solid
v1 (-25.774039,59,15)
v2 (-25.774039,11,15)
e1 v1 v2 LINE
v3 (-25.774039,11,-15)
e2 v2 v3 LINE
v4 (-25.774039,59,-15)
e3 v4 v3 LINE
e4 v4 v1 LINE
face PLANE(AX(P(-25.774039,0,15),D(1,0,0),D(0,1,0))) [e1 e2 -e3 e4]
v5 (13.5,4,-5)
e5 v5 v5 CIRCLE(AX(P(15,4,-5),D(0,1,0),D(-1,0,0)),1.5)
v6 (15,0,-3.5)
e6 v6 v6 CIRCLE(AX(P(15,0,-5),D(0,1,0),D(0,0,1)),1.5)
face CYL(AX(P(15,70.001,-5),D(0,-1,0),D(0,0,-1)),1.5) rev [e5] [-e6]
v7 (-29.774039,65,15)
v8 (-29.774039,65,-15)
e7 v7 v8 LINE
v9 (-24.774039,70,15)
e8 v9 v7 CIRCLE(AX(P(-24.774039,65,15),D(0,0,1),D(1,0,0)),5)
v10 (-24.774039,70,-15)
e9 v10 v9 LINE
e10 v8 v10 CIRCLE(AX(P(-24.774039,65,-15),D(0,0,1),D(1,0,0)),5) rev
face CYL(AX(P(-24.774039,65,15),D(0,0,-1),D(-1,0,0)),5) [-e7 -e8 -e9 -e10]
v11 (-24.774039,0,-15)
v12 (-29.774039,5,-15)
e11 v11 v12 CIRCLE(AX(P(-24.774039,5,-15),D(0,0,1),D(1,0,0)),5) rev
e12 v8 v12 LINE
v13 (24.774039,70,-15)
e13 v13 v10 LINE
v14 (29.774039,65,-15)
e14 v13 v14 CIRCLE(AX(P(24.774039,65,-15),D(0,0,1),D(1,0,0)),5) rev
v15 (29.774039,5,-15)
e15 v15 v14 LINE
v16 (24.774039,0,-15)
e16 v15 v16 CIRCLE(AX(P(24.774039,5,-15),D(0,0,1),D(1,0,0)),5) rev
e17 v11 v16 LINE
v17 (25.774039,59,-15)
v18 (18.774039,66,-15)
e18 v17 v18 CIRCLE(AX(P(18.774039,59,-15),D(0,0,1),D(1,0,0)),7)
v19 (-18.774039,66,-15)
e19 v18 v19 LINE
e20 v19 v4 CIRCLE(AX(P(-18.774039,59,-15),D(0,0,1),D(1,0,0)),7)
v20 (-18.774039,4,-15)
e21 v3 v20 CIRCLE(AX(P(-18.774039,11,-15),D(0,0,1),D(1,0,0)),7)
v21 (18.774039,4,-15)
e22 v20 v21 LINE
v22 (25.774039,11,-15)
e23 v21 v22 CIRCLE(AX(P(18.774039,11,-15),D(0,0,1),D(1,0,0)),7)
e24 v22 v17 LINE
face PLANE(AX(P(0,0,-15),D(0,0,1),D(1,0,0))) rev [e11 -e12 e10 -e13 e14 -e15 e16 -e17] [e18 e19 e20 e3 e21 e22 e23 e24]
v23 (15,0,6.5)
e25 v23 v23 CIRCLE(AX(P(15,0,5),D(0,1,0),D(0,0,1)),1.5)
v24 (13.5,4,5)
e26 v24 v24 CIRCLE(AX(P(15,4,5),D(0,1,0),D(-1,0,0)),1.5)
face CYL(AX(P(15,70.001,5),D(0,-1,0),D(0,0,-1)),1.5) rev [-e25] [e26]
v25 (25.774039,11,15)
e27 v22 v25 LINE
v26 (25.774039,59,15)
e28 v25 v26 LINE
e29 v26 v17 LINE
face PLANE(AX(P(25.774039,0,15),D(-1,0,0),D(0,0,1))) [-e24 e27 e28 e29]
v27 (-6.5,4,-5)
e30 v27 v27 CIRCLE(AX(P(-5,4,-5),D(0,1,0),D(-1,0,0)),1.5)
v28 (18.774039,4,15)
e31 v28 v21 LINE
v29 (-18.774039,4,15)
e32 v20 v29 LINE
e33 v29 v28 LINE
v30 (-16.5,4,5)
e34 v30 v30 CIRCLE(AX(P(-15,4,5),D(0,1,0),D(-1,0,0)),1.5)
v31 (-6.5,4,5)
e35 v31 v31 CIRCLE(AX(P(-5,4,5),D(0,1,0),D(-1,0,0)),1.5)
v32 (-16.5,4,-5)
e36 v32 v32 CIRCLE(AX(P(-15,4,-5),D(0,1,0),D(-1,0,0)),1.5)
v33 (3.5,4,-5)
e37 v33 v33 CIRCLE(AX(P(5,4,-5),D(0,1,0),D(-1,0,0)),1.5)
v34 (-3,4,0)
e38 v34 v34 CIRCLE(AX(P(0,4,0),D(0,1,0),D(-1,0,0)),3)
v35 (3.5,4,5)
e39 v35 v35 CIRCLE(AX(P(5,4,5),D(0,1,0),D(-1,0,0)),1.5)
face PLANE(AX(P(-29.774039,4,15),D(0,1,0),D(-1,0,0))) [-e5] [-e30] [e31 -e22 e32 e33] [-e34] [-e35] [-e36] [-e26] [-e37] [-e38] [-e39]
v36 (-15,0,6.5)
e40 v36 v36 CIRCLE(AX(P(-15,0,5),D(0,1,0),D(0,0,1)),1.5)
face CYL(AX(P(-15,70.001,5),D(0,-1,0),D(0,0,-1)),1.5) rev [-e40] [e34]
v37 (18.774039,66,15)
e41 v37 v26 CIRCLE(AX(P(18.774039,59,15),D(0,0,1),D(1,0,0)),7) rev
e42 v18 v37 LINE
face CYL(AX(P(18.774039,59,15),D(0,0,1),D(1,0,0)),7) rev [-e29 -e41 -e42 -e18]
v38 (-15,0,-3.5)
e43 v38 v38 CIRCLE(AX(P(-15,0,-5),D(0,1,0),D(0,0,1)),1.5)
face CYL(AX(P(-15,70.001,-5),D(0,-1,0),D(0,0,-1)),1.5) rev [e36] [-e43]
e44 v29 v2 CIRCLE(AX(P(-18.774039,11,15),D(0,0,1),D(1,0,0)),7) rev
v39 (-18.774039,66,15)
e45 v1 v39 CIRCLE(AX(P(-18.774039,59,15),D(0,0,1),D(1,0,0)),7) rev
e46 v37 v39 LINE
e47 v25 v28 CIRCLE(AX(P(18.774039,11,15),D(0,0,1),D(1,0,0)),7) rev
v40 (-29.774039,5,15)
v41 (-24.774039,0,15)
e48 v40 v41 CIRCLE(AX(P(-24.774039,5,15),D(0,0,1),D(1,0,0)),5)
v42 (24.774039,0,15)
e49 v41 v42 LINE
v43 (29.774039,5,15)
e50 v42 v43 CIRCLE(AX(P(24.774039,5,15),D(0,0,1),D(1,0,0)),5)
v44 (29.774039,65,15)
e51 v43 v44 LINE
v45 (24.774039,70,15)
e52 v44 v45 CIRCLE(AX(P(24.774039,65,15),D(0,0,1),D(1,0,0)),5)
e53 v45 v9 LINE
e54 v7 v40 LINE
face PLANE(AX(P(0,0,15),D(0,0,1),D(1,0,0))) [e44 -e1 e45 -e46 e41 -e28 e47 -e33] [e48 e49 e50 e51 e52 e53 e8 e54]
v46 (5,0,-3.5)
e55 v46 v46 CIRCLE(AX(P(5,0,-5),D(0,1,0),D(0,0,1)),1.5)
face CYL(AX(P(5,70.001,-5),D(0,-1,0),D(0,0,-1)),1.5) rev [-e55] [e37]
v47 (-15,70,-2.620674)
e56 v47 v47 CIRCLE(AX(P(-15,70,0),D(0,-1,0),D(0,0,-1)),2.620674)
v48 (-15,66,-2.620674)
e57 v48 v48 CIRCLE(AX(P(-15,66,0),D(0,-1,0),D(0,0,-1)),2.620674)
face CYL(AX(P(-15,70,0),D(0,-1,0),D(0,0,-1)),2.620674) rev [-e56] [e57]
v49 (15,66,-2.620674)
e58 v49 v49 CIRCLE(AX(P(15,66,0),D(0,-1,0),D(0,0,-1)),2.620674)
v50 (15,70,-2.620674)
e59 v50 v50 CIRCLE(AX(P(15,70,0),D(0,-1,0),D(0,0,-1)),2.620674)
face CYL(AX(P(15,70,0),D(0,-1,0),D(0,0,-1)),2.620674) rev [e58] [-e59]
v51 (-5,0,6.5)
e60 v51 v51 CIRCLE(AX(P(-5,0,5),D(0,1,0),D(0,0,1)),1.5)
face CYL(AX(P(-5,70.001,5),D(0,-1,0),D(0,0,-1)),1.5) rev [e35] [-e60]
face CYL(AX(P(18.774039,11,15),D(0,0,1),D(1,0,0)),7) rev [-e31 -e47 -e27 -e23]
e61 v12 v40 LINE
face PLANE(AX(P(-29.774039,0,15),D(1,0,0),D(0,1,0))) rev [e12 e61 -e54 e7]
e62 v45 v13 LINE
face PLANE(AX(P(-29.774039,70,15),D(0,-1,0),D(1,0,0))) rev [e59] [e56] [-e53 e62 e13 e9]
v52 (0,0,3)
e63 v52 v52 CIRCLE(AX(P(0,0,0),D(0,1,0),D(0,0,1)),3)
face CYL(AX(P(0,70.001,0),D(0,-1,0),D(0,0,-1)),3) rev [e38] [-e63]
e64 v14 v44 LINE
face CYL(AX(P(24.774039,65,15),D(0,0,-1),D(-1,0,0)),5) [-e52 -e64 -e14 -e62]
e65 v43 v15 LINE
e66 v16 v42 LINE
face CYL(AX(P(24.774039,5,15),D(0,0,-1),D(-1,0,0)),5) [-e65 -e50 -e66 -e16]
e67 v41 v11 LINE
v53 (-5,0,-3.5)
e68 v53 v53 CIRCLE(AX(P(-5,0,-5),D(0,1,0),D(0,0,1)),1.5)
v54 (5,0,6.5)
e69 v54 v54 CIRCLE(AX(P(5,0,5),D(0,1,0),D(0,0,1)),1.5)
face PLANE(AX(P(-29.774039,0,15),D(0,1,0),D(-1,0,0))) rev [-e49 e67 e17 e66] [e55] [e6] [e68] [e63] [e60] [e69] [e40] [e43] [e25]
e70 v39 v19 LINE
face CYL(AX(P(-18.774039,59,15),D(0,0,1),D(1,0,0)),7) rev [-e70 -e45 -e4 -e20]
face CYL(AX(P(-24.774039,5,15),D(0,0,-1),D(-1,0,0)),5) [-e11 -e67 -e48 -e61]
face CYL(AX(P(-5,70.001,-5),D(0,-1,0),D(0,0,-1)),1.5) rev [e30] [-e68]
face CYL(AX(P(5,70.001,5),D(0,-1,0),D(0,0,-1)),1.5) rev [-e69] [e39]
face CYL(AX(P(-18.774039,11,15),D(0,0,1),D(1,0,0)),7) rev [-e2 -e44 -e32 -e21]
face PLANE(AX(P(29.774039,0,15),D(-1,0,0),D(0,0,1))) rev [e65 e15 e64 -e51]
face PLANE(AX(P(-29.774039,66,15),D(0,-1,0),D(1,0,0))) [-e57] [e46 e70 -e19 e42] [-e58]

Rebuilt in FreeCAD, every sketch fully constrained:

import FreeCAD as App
import Part
import Sketcher

V = App.Vector
Q = App.Units.Quantity


def edges_at(feature, points):
    """Names of the edges that pass closest to the given points."""
    edges = feature.Shape.Edges
    near = lambda p: min(range(len(edges)), key=lambda i: edges[i].distToShape(Part.Vertex(*p))[0])
    return sorted({f"Edge{near(p) + 1}" for p in points})


def add_polygon(sketch, points):
    """Adds a closed chain of lines whose ends are joined by coincident constraints."""
    first, n = sketch.GeometryCount, len(points)
    for a, b in zip(points, points[1:] + points[:1]):
        sketch.addGeometry(Part.LineSegment(App.Vector(*a, 0), App.Vector(*b, 0)), False)
    for i in range(n):
        sketch.addConstraint(Sketcher.Constraint("Coincident", first + i, 2, first + (i + 1) % n, 1))

doc = App.newDocument("Part")
body = doc.addObject("PartDesign::Body", "Body")

# Sketch on XY plane
sketch1 = body.newObject("Sketcher::SketchObject", "Sketch")
sketch1.AttachmentSupport = (doc.getObject("XY_Plane"), [""])
sketch1.MapMode = "FlatFace"
add_polygon(sketch1, [(-30, 0), (30, 0), (30, 70), (-30, 70)])  # lines 0-3
add_polygon(sketch1, [(26, 4), (-26, 4), (-26, 66), (26, 66)])  # lines 4-7
sketch1.addConstraint([
    Sketcher.Constraint("Horizontal", 0),
    Sketcher.Constraint("Vertical", 1),
    Sketcher.Constraint("Horizontal", 2),
    Sketcher.Constraint("Vertical", 3),
    Sketcher.Constraint("Horizontal", 4),
    Sketcher.Constraint("Vertical", 5),
    Sketcher.Constraint("Horizontal", 6),
    Sketcher.Constraint("Vertical", 7),
    Sketcher.Constraint("Symmetric", 0, 2, 3, 2, -1, 1),
    Sketcher.Constraint("DistanceY", 1, 1, 1, 2, Q("70 mm")),
    Sketcher.Constraint("DistanceY", 5, 1, 5, 2, Q("62 mm")),
    Sketcher.Constraint("DistanceY", -1, 1, 4, 2, Q("4 mm")),
    Sketcher.Constraint("DistanceX", 3, 2, 4, 2, Q("4 mm")),
    Sketcher.Constraint("DistanceX", 6, 2, 1, 2, Q("4 mm")),
    Sketcher.Constraint("DistanceX", 0, 1, 0, 2, Q("59.548077 mm")),
])
pad1 = body.newObject("PartDesign::Pad", "Pad")
pad1.Profile = sketch1
pad1.Length = 30
pad1.Midplane = True

# Sketch on XZ plane
sketch2 = body.newObject("Sketcher::SketchObject", "Sketch001")
sketch2.AttachmentSupport = (doc.getObject("XZ_Plane"), [""])
sketch2.MapMode = "FlatFace"
sketch2.AttachmentOffset = App.Placement(V(0, 0, -66), App.Rotation())
sketch2.addGeometry([
    Part.Circle(V(15, 0, 0), V(0, 0, 1), 2.6),
    Part.Circle(V(-15, 0, 0), V(0, 0, 1), 2.6),
], False)
sketch2.addConstraint([
    Sketcher.Constraint("Equal", 0, 1),
    Sketcher.Constraint("Symmetric", 0, 3, 1, 3, -1, 1),
    Sketcher.Constraint("PointOnObject", 0, 3, -1),
    Sketcher.Constraint("DistanceX", -1, 1, 0, 3, Q("15 mm")),
    Sketcher.Constraint("Diameter", 0, Q("5.241348 mm")),
])
pocket1 = body.newObject("PartDesign::Pocket", "Pocket")
pocket1.Profile = sketch2
pocket1.Type = "ThroughAll"
doc.recompute()

fillet = body.newObject("PartDesign::Fillet", "Fillet")
fillet.Base = (pocket1, edges_at(pocket1, [
    (-25.774, 4, 0),
    (25.774, 4, 0),
    (25.774, 66, 0),
    (-25.774, 66, 0),
]))
fillet.Radius = 7

# Sketch on XZ plane
sketch3 = body.newObject("Sketcher::SketchObject", "Sketch002")
sketch3.AttachmentSupport = (doc.getObject("XZ_Plane"), [""])
sketch3.MapMode = "FlatFace"
sketch3.addGeometry(Part.Circle(V(0, 0, 0), V(0, 0, 1), 3), False)
sketch3.addConstraint([
    Sketcher.Constraint("Coincident", 0, 3, -1, 1),
    Sketcher.Constraint("Diameter", 0, Q("6 mm")),
])
pocket2 = body.newObject("PartDesign::Pocket", "Pocket001")
pocket2.Profile = sketch3
pocket2.Type = "UpToFirst"

# Sketch on XZ plane
sketch4 = body.newObject("Sketcher::SketchObject", "Sketch003")
sketch4.AttachmentSupport = (doc.getObject("XZ_Plane"), [""])
sketch4.MapMode = "FlatFace"
sketch4.addGeometry(Part.Circle(V(-15, -5, 0), V(0, 0, 1), 1.5), False)
sketch4.addConstraint([
    Sketcher.Constraint("Diameter", 0, Q("3 mm")),
    Sketcher.Constraint("DistanceX", 0, 3, -1, 1, Q("15 mm")),
    Sketcher.Constraint("DistanceY", 0, 3, -1, 1, Q("5 mm")),
])
pocket3 = body.newObject("PartDesign::Pocket", "Pocket002")
pocket3.Profile = sketch4
pocket3.Type = "UpToFirst"

# Sketch on XZ plane
sketch5 = body.newObject("Sketcher::SketchObject", "Sketch004")
sketch5.AttachmentSupport = (doc.getObject("XZ_Plane"), [""])
sketch5.MapMode = "FlatFace"
sketch5.addGeometry(Part.Circle(V(-5, -5, 0), V(0, 0, 1), 1.5), False)
sketch5.addConstraint([
    Sketcher.Constraint("Diameter", 0, Q("3 mm")),
    Sketcher.Constraint("DistanceX", 0, 3, -1, 1, Q("5 mm")),
    Sketcher.Constraint("DistanceY", 0, 3, -1, 1, Q("5 mm")),
])
pocket4 = body.newObject("PartDesign::Pocket", "Pocket003")
pocket4.Profile = sketch5
pocket4.Type = "UpToFirst"

# Sketch on XZ plane
sketch6 = body.newObject("Sketcher::SketchObject", "Sketch005")
sketch6.AttachmentSupport = (doc.getObject("XZ_Plane"), [""])
sketch6.MapMode = "FlatFace"
sketch6.addGeometry(Part.Circle(V(5, -5, 0), V(0, 0, 1), 1.5), False)
sketch6.addConstraint([
    Sketcher.Constraint("Diameter", 0, Q("3 mm")),
    Sketcher.Constraint("DistanceX", -1, 1, 0, 3, Q("5 mm")),
    Sketcher.Constraint("DistanceY", 0, 3, -1, 1, Q("5 mm")),
])
pocket5 = body.newObject("PartDesign::Pocket", "Pocket004")
pocket5.Profile = sketch6
pocket5.Type = "UpToFirst"

# Sketch on XZ plane
sketch7 = body.newObject("Sketcher::SketchObject", "Sketch006")
sketch7.AttachmentSupport = (doc.getObject("XZ_Plane"), [""])
sketch7.MapMode = "FlatFace"
sketch7.addGeometry(Part.Circle(V(15, -5, 0), V(0, 0, 1), 1.5), False)
sketch7.addConstraint([
    Sketcher.Constraint("Diameter", 0, Q("3 mm")),
    Sketcher.Constraint("DistanceX", -1, 1, 0, 3, Q("15 mm")),
    Sketcher.Constraint("DistanceY", 0, 3, -1, 1, Q("5 mm")),
])
pocket6 = body.newObject("PartDesign::Pocket", "Pocket005")
pocket6.Profile = sketch7
pocket6.Type = "UpToFirst"

# Sketch on XZ plane
sketch8 = body.newObject("Sketcher::SketchObject", "Sketch007")
sketch8.AttachmentSupport = (doc.getObject("XZ_Plane"), [""])
sketch8.MapMode = "FlatFace"
sketch8.addGeometry(Part.Circle(V(-5, 5, 0), V(0, 0, 1), 1.5), False)
sketch8.addConstraint([
    Sketcher.Constraint("Diameter", 0, Q("3 mm")),
    Sketcher.Constraint("DistanceX", 0, 3, -1, 1, Q("5 mm")),
    Sketcher.Constraint("DistanceY", -1, 1, 0, 3, Q("5 mm")),
])
pocket7 = body.newObject("PartDesign::Pocket", "Pocket006")
pocket7.Profile = sketch8
pocket7.Type = "UpToFirst"

# Sketch on XZ plane
sketch9 = body.newObject("Sketcher::SketchObject", "Sketch008")
sketch9.AttachmentSupport = (doc.getObject("XZ_Plane"), [""])
sketch9.MapMode = "FlatFace"
sketch9.addGeometry(Part.Circle(V(5, 5, 0), V(0, 0, 1), 1.5), False)
sketch9.addConstraint([
    Sketcher.Constraint("Diameter", 0, Q("3 mm")),
    Sketcher.Constraint("DistanceX", -1, 1, 0, 3, Q("5 mm")),
    Sketcher.Constraint("DistanceY", -1, 1, 0, 3, Q("5 mm")),
])
pocket8 = body.newObject("PartDesign::Pocket", "Pocket007")
pocket8.Profile = sketch9
pocket8.Type = "UpToFirst"

# Sketch on XZ plane
sketch10 = body.newObject("Sketcher::SketchObject", "Sketch009")
sketch10.AttachmentSupport = (doc.getObject("XZ_Plane"), [""])
sketch10.MapMode = "FlatFace"
sketch10.addGeometry(Part.Circle(V(15, 5, 0), V(0, 0, 1), 1.5), False)
sketch10.addConstraint([
    Sketcher.Constraint("Diameter", 0, Q("3 mm")),
    Sketcher.Constraint("DistanceX", -1, 1, 0, 3, Q("15 mm")),
    Sketcher.Constraint("DistanceY", -1, 1, 0, 3, Q("5 mm")),
])
pocket9 = body.newObject("PartDesign::Pocket", "Pocket008")
pocket9.Profile = sketch10
pocket9.Type = "UpToFirst"

# Sketch on XZ plane
sketch11 = body.newObject("Sketcher::SketchObject", "Sketch010")
sketch11.AttachmentSupport = (doc.getObject("XZ_Plane"), [""])
sketch11.MapMode = "FlatFace"
sketch11.addGeometry(Part.Circle(V(-15, 5, 0), V(0, 0, 1), 1.5), False)
sketch11.addConstraint([
    Sketcher.Constraint("Diameter", 0, Q("3 mm")),
    Sketcher.Constraint("DistanceX", 0, 3, -1, 1, Q("15 mm")),
    Sketcher.Constraint("DistanceY", -1, 1, 0, 3, Q("5 mm")),
])
pocket10 = body.newObject("PartDesign::Pocket", "Pocket009")
pocket10.Profile = sketch11
pocket10.Type = "UpToFirst"
doc.recompute()

fillet2 = body.newObject("PartDesign::Fillet", "Fillet001")
fillet2.Base = (pocket10, edges_at(pocket10, [
    (-29.774, 0, 0),
    (-29.774, 70, 0),
    (29.774, 70, 0),
    (29.774, 0, 0),
]))
fillet2.Radius = 5

doc.recompute()
